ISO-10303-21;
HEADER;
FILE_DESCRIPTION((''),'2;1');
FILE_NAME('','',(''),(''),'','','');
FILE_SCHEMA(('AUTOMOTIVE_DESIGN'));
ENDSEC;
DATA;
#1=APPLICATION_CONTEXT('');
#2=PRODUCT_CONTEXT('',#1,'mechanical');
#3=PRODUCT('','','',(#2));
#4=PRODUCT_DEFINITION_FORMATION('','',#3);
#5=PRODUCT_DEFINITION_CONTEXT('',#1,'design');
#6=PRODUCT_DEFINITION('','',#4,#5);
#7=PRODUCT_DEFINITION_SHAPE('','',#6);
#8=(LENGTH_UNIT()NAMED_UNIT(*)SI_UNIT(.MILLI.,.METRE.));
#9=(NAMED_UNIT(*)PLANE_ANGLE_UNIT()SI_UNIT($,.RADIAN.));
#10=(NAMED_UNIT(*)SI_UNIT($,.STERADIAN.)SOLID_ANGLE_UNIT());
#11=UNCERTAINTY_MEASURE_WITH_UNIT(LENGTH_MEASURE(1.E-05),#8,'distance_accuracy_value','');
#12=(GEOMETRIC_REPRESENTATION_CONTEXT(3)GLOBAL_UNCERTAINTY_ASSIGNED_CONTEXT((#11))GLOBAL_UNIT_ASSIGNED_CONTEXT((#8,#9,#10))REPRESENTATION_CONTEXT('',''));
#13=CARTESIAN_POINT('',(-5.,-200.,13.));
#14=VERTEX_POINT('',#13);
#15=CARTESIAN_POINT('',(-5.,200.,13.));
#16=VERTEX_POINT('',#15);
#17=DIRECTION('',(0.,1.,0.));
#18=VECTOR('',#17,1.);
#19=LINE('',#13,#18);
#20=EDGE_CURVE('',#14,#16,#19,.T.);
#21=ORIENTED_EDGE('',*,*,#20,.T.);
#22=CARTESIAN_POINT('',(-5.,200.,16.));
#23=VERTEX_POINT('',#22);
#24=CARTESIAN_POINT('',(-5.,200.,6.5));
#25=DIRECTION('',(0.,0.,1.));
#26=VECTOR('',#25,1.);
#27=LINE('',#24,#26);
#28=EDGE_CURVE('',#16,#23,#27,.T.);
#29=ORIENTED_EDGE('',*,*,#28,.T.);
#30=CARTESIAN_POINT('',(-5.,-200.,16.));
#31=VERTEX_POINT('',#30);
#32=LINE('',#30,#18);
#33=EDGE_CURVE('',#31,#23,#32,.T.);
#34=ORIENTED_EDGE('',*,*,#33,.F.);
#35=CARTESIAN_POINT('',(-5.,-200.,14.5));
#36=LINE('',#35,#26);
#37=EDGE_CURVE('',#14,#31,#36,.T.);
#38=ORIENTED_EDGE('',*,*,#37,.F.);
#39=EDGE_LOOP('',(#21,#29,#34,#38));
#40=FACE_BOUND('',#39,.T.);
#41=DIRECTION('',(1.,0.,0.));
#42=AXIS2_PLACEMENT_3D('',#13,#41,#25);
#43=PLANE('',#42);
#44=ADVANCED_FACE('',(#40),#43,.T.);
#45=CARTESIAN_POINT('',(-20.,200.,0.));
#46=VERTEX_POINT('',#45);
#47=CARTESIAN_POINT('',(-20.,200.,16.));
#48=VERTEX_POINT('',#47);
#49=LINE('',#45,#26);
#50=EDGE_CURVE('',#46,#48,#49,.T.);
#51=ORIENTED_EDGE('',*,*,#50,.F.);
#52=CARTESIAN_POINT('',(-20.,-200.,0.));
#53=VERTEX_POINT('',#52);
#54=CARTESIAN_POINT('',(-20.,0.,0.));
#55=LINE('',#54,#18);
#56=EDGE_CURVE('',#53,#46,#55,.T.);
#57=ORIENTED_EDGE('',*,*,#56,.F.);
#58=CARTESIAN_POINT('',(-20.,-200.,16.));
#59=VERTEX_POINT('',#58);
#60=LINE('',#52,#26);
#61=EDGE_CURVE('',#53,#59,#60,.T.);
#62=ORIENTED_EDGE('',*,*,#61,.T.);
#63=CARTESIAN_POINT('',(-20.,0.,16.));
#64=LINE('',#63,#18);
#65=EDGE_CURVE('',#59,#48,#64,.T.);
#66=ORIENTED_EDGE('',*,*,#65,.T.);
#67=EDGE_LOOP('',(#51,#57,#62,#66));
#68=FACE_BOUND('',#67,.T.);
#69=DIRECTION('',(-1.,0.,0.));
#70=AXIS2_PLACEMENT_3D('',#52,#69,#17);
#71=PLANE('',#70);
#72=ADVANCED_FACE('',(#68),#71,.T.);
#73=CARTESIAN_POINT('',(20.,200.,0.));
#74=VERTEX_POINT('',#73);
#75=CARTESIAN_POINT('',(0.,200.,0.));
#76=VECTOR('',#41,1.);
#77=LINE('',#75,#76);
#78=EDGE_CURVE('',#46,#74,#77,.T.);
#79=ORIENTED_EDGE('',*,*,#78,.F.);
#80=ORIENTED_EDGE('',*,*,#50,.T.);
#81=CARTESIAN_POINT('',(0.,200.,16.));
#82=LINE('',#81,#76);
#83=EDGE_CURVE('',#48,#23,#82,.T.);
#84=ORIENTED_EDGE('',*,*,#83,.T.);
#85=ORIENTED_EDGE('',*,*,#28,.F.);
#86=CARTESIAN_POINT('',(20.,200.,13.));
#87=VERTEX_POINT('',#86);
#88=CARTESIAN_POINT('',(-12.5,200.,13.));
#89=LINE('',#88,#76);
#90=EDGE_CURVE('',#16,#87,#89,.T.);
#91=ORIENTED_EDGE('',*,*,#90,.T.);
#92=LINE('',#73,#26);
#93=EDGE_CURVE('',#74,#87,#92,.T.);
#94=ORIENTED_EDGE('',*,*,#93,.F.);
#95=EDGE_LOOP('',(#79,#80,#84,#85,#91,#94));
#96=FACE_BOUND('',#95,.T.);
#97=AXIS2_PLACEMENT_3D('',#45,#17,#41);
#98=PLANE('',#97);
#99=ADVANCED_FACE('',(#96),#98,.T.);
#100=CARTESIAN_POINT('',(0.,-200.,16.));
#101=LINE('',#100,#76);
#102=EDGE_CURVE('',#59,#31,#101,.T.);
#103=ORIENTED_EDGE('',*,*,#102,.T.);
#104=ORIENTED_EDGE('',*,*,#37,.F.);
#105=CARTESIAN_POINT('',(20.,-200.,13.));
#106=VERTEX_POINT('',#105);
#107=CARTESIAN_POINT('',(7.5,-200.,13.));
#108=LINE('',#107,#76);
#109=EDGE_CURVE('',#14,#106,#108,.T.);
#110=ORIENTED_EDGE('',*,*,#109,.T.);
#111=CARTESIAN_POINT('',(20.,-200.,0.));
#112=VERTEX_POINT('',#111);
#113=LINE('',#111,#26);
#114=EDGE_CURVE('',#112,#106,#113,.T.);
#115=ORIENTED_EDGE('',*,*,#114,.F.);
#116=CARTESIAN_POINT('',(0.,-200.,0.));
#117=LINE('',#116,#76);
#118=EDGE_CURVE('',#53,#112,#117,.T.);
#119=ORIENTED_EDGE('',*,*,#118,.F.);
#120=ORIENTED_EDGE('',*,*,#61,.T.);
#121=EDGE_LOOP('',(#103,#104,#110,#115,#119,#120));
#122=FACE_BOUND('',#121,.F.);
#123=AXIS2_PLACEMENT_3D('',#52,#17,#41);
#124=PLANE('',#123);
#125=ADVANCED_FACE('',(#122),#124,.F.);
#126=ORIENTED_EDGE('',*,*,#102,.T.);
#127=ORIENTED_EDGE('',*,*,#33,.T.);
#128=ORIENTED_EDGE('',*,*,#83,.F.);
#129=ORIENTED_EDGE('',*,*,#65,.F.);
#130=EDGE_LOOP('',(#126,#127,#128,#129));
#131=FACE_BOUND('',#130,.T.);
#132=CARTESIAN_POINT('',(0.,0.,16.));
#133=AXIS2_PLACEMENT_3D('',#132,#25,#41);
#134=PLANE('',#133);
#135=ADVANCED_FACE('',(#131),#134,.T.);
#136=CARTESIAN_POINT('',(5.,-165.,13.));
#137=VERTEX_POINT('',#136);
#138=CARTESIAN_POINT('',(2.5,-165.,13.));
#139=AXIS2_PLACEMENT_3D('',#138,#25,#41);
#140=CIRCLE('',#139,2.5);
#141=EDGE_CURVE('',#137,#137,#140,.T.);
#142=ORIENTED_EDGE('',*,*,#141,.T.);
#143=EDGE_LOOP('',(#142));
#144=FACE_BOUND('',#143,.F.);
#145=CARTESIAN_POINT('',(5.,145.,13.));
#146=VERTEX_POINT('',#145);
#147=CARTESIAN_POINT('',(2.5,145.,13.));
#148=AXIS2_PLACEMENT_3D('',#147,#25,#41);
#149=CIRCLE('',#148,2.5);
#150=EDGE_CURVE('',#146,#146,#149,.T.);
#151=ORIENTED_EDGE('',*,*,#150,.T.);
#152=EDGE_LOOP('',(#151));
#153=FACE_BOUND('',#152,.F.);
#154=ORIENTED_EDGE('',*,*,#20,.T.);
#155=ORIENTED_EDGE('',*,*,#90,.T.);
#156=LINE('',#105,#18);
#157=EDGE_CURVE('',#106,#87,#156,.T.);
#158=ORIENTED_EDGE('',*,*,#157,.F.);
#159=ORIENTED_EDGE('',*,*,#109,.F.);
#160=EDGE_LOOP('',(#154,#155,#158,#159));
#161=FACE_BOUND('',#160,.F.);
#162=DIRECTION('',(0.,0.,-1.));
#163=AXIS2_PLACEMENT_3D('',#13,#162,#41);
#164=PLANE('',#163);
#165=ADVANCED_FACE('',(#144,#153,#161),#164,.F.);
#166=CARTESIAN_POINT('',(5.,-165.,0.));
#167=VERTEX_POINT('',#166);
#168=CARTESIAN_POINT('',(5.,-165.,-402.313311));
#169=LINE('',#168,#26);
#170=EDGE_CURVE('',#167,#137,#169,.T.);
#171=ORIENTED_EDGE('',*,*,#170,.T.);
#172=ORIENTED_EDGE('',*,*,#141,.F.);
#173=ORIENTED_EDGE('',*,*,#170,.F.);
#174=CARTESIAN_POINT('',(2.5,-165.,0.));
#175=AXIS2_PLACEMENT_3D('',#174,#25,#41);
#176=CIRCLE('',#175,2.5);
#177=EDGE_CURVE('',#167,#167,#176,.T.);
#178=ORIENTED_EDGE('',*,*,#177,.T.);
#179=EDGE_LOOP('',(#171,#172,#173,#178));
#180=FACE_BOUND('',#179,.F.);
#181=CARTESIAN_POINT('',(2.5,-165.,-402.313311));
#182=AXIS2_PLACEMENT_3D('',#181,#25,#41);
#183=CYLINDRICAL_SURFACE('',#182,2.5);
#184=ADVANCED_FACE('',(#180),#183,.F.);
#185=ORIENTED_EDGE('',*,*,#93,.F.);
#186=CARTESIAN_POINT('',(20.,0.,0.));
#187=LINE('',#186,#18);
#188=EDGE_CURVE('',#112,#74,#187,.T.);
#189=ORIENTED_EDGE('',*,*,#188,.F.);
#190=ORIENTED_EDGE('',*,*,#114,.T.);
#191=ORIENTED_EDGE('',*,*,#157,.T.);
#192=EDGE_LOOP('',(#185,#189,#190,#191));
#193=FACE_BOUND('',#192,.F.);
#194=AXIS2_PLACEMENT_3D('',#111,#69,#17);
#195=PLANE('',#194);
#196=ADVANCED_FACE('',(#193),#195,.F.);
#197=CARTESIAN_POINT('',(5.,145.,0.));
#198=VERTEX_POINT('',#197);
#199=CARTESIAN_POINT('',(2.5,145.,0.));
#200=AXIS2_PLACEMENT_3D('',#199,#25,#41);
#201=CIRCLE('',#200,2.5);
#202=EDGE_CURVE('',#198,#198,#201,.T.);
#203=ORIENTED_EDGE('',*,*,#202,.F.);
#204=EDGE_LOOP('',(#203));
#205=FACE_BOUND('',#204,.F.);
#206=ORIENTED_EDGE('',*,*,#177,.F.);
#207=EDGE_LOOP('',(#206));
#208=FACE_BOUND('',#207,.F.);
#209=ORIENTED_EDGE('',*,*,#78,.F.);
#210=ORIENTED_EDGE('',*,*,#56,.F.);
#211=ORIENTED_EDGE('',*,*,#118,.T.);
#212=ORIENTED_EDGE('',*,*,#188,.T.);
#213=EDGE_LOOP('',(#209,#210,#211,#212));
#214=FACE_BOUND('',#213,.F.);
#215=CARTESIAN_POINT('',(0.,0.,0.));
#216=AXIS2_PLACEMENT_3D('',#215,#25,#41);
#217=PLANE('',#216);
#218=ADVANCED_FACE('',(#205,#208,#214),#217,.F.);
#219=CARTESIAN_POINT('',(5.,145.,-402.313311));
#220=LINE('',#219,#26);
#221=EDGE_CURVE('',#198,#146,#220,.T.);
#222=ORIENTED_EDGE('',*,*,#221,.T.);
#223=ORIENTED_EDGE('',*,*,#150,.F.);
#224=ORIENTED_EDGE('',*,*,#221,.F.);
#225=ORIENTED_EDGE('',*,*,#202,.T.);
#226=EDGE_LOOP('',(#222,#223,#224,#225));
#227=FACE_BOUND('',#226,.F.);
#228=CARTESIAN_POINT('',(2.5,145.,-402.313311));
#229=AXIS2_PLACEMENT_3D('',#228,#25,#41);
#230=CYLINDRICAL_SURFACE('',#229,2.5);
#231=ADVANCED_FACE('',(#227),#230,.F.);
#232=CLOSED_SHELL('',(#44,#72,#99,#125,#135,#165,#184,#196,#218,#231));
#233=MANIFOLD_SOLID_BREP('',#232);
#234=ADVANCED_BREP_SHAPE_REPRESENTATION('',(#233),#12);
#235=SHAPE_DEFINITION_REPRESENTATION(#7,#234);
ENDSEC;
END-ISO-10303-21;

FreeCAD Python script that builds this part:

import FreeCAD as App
import Part
import Sketcher
Q = App.Units.Quantity

doc = App.newDocument("Part")
body = doc.addObject("PartDesign::Body", "Body")

# Sketch on XY plane
sketch1 = doc.addObject("Sketcher::SketchObject", "Sketch")
body.addObject(sketch1)
sketch1.AttachmentSupport = (doc.XY_Plane, [""])
sketch1.MapMode = "FlatFace"
sketch1.addGeometry([
    Part.LineSegment(App.Vector(-20, 200, 0), App.Vector(-20, -200, 0)),
    Part.LineSegment(App.Vector(-20, -200, 0), App.Vector(20, -200, 0)),
    Part.LineSegment(App.Vector(20, -200, 0), App.Vector(20, 200, 0)),
    Part.LineSegment(App.Vector(20, 200, 0), App.Vector(-20, 200, 0)),
], False)
sketch1.addConstraint([
    Sketcher.Constraint("Coincident", 0, 2, 1, 1),
    Sketcher.Constraint("Coincident", 1, 2, 2, 1),
    Sketcher.Constraint("Coincident", 2, 2, 3, 1),
    Sketcher.Constraint("Coincident", 3, 2, 0, 1),
    Sketcher.Constraint("Vertical", 0),
    Sketcher.Constraint("Horizontal", 1),
    Sketcher.Constraint("Vertical", 2),
    Sketcher.Constraint("Horizontal", 3),
    Sketcher.Constraint("Symmetric", 0, 2, 2, 2, -1, 1),
    Sketcher.Constraint("DistanceX", 1, 1, 1, 2, Q("40 mm")),
    Sketcher.Constraint("DistanceY", 0, 2, 0, 1, Q("400 mm")),
])
pad1 = doc.addObject("PartDesign::Pad", "Pad")
body.addObject(pad1)
pad1.Profile = sketch1
pad1.Length = 16

# Sketch on XZ plane
sketch2 = doc.addObject("Sketcher::SketchObject", "Sketch001")
body.addObject(sketch2)
sketch2.AttachmentSupport = (doc.XZ_Plane, [""])
sketch2.MapMode = "FlatFace"
sketch2.AttachmentOffset = App.Placement(App.Vector(0, 0, 200), App.Rotation())
sketch2.addGeometry([
    Part.LineSegment(App.Vector(-5, 16, 0), App.Vector(-5, 13, 0)),
    Part.LineSegment(App.Vector(-5, 13, 0), App.Vector(20, 13, 0)),
    Part.LineSegment(App.Vector(20, 13, 0), App.Vector(20, 16, 0)),
    Part.LineSegment(App.Vector(20, 16, 0), App.Vector(-5, 16, 0)),
], False)
sketch2.addConstraint([
    Sketcher.Constraint("Coincident", 0, 2, 1, 1),
    Sketcher.Constraint("Coincident", 1, 2, 2, 1),
    Sketcher.Constraint("Coincident", 2, 2, 3, 1),
    Sketcher.Constraint("Coincident", 3, 2, 0, 1),
    Sketcher.Constraint("Vertical", 0),
    Sketcher.Constraint("Horizontal", 1),
    Sketcher.Constraint("Vertical", 2),
    Sketcher.Constraint("Horizontal", 3),
    Sketcher.Constraint("DistanceX", 1, 1, 1, 2, Q("25 mm")),
    Sketcher.Constraint("DistanceY", 0, 2, 0, 1, Q("3 mm")),
    Sketcher.Constraint("DistanceX", 0, 2, -1, 1, Q("5 mm")),
    Sketcher.Constraint("DistanceY", -1, 1, 0, 2, Q("13 mm")),
])
pocket1 = doc.addObject("PartDesign::Pocket", "Pocket")
body.addObject(pocket1)
pocket1.Profile = sketch2
pocket1.Type = "UpToFirst"

# Sketch on XY plane
sketch3 = doc.addObject("Sketcher::SketchObject", "Sketch002")
body.addObject(sketch3)
sketch3.AttachmentSupport = (doc.XY_Plane, [""])
sketch3.MapMode = "FlatFace"
sketch3.addGeometry([
    Part.Circle(App.Vector(2.5, 145, 0), App.Vector(0, 0, 1), 2.5),
    Part.Circle(App.Vector(2.5, -165, 0), App.Vector(0, 0, 1), 2.5),
], False)
sketch3.addConstraint([
    Sketcher.Constraint("Equal", 0, 1),
    Sketcher.Constraint("Vertical", 0, 3, 1, 3),
    Sketcher.Constraint("Diameter", 0, Q("5 mm")),
    Sketcher.Constraint("DistanceY", -1, 1, 0, 3, Q("145 mm")),
    Sketcher.Constraint("DistanceY", 1, 3, -1, 1, Q("165 mm")),
    Sketcher.Constraint("DistanceX", -1, 1, 0, 3, Q("2.5 mm")),
])
doc.recompute()
hole = doc.addObject("PartDesign::Hole", "Hole")
body.addObject(hole)
hole.Profile = sketch3
hole.ThreadType = "None"
hole.Diameter = 5
hole.DepthType = "ThroughAll"
hole.Reversed = True

doc.recompute()
